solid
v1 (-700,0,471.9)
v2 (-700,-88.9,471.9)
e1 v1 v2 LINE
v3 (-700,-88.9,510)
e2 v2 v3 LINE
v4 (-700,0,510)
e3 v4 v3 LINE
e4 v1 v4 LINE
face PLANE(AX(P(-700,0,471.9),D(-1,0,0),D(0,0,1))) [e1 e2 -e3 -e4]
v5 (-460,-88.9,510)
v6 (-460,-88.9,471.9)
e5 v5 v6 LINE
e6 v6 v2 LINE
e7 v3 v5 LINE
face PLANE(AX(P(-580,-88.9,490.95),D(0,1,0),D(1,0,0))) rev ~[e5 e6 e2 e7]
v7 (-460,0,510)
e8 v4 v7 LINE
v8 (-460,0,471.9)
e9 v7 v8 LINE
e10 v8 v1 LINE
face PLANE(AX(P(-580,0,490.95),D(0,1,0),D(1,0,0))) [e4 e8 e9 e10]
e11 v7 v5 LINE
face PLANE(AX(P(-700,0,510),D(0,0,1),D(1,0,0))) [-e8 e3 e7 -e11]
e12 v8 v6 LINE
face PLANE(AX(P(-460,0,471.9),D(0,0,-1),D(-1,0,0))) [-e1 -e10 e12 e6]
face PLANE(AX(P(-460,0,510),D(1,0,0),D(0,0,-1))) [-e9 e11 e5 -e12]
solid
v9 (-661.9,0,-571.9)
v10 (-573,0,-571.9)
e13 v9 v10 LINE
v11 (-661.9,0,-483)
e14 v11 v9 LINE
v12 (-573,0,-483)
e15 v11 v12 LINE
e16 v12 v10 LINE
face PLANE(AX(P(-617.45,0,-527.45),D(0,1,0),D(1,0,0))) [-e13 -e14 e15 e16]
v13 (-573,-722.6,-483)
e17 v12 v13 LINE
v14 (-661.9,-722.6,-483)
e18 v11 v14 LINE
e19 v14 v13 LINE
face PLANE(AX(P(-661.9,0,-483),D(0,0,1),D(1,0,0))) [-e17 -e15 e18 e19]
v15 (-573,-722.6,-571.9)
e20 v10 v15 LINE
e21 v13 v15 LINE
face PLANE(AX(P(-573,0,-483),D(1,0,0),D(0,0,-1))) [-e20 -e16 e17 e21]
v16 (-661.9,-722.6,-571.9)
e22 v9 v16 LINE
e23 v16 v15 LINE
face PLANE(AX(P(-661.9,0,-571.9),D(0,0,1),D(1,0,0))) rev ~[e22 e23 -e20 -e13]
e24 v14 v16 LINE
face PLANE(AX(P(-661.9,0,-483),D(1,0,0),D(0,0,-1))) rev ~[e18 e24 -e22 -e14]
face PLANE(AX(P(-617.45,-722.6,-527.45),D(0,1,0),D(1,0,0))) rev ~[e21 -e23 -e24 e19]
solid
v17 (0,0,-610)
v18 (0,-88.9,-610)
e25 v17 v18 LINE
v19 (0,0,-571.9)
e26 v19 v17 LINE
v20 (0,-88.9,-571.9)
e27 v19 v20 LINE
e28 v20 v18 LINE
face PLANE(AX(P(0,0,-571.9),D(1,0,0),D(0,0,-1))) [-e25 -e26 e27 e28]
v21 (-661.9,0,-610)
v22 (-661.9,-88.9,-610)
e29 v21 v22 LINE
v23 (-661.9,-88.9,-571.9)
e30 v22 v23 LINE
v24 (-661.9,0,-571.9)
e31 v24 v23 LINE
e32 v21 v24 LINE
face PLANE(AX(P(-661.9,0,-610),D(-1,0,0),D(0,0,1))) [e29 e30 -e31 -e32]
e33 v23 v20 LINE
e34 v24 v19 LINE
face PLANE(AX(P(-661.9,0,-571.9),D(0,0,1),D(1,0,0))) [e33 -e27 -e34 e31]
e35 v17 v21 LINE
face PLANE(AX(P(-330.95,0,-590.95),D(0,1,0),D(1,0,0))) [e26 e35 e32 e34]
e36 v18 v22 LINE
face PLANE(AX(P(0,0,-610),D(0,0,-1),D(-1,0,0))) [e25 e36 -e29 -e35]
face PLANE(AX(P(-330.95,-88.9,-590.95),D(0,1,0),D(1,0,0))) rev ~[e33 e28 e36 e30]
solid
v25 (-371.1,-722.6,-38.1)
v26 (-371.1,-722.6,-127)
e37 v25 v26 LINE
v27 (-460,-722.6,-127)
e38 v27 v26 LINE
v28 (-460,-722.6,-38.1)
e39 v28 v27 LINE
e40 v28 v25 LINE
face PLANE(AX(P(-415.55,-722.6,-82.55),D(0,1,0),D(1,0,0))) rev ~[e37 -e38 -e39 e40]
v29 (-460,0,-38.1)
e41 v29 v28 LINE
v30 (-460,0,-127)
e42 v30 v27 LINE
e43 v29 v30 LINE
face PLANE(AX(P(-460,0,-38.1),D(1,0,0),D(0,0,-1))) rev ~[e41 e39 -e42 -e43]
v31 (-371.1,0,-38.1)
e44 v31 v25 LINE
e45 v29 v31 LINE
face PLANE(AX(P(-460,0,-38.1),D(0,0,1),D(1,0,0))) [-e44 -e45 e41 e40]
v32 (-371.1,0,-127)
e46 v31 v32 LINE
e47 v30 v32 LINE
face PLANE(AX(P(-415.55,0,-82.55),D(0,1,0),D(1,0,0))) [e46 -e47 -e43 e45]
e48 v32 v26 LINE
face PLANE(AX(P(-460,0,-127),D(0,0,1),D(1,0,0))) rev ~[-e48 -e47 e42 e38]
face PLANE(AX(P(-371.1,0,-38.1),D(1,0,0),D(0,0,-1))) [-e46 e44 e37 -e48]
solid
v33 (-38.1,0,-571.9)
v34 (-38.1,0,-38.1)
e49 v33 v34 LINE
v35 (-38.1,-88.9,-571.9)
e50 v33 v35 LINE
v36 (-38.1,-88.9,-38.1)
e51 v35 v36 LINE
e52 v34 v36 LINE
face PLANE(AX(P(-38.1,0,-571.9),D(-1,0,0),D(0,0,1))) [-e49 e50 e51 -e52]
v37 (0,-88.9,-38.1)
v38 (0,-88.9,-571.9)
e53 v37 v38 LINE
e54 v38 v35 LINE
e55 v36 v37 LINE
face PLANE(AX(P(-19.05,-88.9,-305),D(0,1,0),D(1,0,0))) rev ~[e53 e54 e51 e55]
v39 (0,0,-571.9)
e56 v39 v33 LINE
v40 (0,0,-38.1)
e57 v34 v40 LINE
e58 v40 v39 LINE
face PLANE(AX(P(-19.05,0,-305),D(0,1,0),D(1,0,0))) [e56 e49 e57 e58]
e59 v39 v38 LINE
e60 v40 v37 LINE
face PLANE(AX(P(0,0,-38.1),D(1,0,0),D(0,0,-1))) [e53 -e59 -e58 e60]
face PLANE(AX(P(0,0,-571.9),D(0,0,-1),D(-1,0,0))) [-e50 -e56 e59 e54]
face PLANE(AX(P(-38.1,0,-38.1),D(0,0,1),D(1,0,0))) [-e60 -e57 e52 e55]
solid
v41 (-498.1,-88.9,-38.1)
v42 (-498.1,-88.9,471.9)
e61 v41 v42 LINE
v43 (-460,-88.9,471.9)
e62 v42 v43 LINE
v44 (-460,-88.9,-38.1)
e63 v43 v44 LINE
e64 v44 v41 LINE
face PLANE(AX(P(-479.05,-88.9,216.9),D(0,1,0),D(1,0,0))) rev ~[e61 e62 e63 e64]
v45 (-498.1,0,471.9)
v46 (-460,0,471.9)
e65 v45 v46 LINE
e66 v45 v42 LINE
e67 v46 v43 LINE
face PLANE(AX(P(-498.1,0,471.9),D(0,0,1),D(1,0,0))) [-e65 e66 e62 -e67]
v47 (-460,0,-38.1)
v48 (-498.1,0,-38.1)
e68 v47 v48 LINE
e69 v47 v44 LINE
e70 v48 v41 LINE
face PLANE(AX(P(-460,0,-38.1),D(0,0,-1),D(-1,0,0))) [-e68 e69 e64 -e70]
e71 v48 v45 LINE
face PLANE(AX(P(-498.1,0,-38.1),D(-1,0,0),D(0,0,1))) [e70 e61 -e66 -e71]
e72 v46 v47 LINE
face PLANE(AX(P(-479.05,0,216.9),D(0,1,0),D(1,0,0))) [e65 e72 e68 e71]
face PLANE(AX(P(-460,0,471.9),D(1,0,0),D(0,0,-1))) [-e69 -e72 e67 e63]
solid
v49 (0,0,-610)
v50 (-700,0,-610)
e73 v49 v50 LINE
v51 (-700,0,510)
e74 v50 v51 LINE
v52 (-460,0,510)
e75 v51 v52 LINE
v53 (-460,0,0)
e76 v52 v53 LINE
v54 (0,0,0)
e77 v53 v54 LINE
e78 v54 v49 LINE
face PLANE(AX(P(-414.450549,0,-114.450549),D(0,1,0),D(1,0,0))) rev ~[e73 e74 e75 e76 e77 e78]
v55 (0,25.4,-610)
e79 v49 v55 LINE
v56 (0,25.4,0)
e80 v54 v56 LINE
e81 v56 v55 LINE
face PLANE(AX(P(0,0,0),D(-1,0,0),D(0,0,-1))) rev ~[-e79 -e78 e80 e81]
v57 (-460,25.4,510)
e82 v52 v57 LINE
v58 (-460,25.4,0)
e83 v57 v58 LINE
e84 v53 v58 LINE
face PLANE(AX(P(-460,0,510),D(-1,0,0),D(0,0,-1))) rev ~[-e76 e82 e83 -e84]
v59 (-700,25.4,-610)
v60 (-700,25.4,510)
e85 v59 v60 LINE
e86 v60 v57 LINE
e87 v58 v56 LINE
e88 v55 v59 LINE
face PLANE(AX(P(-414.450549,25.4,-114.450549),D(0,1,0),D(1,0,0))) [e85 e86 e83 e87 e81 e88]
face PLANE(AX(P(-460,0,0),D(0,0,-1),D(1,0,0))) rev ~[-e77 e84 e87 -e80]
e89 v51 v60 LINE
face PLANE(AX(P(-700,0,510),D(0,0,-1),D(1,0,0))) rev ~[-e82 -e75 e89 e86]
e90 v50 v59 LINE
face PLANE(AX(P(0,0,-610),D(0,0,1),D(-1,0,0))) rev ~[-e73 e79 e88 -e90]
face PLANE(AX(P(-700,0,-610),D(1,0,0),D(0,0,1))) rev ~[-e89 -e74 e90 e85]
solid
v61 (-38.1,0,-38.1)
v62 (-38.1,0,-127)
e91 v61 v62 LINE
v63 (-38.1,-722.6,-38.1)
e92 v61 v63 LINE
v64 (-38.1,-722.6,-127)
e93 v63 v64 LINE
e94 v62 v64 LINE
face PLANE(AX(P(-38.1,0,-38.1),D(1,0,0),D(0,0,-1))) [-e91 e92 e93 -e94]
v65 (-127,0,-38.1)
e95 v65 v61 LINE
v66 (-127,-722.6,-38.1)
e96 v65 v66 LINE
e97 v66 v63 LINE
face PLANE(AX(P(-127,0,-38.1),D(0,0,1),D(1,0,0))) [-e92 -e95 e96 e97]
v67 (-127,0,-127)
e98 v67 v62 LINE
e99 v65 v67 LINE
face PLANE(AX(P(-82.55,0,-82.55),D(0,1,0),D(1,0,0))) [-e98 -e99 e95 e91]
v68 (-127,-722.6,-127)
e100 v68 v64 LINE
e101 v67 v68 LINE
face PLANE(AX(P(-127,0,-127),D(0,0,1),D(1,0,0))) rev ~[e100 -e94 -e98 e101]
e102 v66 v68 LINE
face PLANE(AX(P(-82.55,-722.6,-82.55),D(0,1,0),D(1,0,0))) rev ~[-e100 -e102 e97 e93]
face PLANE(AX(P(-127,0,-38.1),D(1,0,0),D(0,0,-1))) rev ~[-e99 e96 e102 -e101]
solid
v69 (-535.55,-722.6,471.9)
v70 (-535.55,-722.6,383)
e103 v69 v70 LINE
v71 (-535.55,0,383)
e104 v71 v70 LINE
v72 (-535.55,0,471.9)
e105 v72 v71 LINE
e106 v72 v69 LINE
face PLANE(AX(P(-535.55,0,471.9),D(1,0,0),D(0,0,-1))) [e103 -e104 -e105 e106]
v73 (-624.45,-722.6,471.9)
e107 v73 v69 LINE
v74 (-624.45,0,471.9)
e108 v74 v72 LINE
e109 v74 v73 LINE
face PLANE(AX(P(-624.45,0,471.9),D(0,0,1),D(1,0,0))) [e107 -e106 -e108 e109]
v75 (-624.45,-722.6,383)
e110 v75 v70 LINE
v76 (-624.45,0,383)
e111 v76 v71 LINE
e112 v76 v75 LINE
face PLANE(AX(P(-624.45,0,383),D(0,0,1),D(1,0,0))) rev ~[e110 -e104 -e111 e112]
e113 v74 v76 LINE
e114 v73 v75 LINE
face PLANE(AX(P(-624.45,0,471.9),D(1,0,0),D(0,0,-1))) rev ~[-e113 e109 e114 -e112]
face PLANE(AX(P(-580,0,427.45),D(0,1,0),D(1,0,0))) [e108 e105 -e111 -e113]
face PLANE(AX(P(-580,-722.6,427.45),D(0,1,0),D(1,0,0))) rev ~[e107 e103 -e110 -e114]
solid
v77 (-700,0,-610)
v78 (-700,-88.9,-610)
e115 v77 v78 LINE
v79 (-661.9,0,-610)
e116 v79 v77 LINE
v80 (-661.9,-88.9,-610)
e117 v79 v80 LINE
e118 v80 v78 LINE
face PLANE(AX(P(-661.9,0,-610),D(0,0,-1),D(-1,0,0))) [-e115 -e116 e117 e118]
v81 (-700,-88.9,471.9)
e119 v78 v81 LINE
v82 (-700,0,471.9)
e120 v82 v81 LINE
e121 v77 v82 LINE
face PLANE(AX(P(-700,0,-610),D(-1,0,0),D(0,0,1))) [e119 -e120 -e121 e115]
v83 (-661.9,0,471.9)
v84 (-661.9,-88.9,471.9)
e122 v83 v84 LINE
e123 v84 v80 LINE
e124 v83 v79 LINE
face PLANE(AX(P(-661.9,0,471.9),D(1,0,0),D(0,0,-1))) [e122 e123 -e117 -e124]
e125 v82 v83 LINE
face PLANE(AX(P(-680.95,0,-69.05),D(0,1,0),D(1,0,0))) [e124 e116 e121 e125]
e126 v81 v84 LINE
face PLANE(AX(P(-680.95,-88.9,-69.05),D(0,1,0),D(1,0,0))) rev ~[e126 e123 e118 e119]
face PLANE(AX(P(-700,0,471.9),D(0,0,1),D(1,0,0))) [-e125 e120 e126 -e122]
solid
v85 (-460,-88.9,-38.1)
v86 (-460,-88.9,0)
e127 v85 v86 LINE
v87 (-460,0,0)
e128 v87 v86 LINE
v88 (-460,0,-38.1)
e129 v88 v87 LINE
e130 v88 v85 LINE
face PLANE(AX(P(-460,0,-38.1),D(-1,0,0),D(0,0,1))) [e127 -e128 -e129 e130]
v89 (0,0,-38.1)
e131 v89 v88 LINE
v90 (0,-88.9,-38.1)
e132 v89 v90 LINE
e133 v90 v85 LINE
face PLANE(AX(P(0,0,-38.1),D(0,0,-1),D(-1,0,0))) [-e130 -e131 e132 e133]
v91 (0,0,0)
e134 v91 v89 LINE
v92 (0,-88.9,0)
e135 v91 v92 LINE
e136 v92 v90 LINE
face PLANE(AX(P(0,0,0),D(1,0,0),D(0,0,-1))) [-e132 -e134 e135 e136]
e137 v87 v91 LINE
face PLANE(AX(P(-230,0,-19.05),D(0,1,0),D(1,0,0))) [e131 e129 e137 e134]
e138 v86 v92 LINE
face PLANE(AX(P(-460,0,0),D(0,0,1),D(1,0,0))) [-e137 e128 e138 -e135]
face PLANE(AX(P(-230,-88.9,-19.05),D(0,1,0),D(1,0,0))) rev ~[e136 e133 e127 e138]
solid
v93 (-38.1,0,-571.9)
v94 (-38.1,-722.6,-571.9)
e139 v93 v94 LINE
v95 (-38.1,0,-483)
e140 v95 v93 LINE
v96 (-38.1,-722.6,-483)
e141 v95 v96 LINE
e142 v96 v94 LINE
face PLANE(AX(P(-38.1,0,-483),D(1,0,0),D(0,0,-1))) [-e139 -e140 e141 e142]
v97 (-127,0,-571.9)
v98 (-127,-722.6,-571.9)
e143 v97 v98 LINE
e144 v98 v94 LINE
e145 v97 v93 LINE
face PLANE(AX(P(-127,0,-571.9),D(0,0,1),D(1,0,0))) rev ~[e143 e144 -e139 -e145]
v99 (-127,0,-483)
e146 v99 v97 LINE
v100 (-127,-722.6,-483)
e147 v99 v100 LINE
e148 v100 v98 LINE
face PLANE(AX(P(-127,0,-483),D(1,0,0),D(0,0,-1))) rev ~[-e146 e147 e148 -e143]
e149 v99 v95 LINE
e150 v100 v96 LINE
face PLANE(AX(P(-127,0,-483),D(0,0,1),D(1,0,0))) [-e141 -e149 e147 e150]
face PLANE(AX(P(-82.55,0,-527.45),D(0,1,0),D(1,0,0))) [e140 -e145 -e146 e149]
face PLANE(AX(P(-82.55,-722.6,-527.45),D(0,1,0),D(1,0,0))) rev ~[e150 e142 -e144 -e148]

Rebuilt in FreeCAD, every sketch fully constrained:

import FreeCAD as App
import Part
import Sketcher
Q = App.Units.Quantity


def add_polygon(sketch, points):
    """Adds a closed chain of lines whose ends are joined by coincident constraints."""
    first, n = sketch.GeometryCount, len(points)
    for a, b in zip(points, points[1:] + points[:1]):
        sketch.addGeometry(Part.LineSegment(App.Vector(*a, 0), App.Vector(*b, 0)), False)
    for i in range(n):
        sketch.addConstraint(Sketcher.Constraint("Coincident", first + i, 2, first + (i + 1) % n, 1))

doc = App.newDocument("Part")
body = doc.addObject("PartDesign::Body", "Body")

sketch1 = body.newObject("Sketcher::SketchObject", "Sketch")
sketch1.AttachmentSupport = (doc.getObject("XZ_Plane"), [""])
sketch1.MapMode = "FlatFace"
add_polygon(sketch1, [(-700, 510), (-460, 510), (-460, 0), (0, 0), (0, -610), (-700, -610)])
sketch1.addConstraint([
    Sketcher.Constraint("Horizontal", 0),
    Sketcher.Constraint("Vertical", 1),
    Sketcher.Constraint("Horizontal", 2),
    Sketcher.Constraint("Vertical", 3),
    Sketcher.Constraint("Horizontal", 4),
    Sketcher.Constraint("Vertical", 5),
    Sketcher.Constraint("Coincident", 2, 2, -1, 1),
    Sketcher.Constraint("DistanceX", 0, 1, 0, 2, Q("240 mm")),
    Sketcher.Constraint("DistanceX", 2, 1, 2, 2, Q("460 mm")),
    Sketcher.Constraint("DistanceY", 1, 2, 1, 1, Q("510 mm")),
    Sketcher.Constraint("DistanceY", 3, 2, 3, 1, Q("610 mm")),
])
pad1 = body.newObject("PartDesign::Pad", "Pad")
pad1.Profile = sketch1
pad1.Length = 25.4
pad1.Reversed = True
body2 = doc.addObject("PartDesign::Body", "Body001")

sketch2 = body2.newObject("Sketcher::SketchObject", "Sketch001")
sketch2.AttachmentSupport = (doc.getObject("XZ_Plane001"), [""])
sketch2.MapMode = "FlatFace"
add_polygon(sketch2, [(-624, 383), (-624, 472), (-536, 472), (-536, 383)])
sketch2.addConstraint([
    Sketcher.Constraint("Vertical", 0),
    Sketcher.Constraint("Horizontal", 1),
    Sketcher.Constraint("Vertical", 2),
    Sketcher.Constraint("Horizontal", 3),
    Sketcher.Constraint("Equal", 3, 0),
    Sketcher.Constraint("DistanceX", 1, 1, 1, 2, Q("88.9 mm")),
    Sketcher.Constraint("DistanceY", -1, 1, 2, 2, Q("383 mm")),
    Sketcher.Constraint("DistanceX", 0, 2, -1, 1, Q("624.45 mm")),
])
pad2 = body2.newObject("PartDesign::Pad", "Pad001")
pad2.Profile = sketch2
pad2.Length = 722.6
body3 = doc.addObject("PartDesign::Body", "Body002")

sketch3 = body3.newObject("Sketcher::SketchObject", "Sketch002")
sketch3.AttachmentSupport = (doc.getObject("XZ_Plane002"), [""])
sketch3.MapMode = "FlatFace"
add_polygon(sketch3, [(-460, -127), (-460, -38), (-371, -38), (-371, -127)])
sketch3.addConstraint([
    Sketcher.Constraint("Vertical", 0),
    Sketcher.Constraint("Horizontal", 1),
    Sketcher.Constraint("Vertical", 2),
    Sketcher.Constraint("Horizontal", 3),
    Sketcher.Constraint("Equal", 3, 0),
    Sketcher.Constraint("DistanceX", 1, 1, 1, 2, Q("88.9 mm")),
    Sketcher.Constraint("DistanceX", 0, 2, -1, 1, Q("460 mm")),
    Sketcher.Constraint("DistanceY", 2, 2, -1, 1, Q("127 mm")),
])
pad3 = body3.newObject("PartDesign::Pad", "Pad002")
pad3.Profile = sketch3
pad3.Length = 722.6
body4 = doc.addObject("PartDesign::Body", "Body003")

sketch4 = body4.newObject("Sketcher::SketchObject", "Sketch003")
sketch4.AttachmentSupport = (doc.getObject("XZ_Plane003"), [""])
sketch4.MapMode = "FlatFace"
add_polygon(sketch4, [(-127, -127), (-127, -38), (-38, -38), (-38, -127)])
sketch4.addConstraint([
    Sketcher.Constraint("Vertical", 0),
    Sketcher.Constraint("Horizontal", 1),
    Sketcher.Constraint("Vertical", 2),
    Sketcher.Constraint("Horizontal", 3),
    Sketcher.Constraint("Equal", 3, 0),
    Sketcher.Constraint("DistanceX", 1, 1, 1, 2, Q("88.9 mm")),
    Sketcher.Constraint("DistanceX", 0, 2, -1, 1, Q("127 mm")),
    Sketcher.Constraint("DistanceY", 2, 2, -1, 1, Q("127 mm")),
])
pad4 = body4.newObject("PartDesign::Pad", "Pad003")
pad4.Profile = sketch4
pad4.Length = 722.6
body5 = doc.addObject("PartDesign::Body", "Body004")

sketch5 = body5.newObject("Sketcher::SketchObject", "Sketch004")
sketch5.AttachmentSupport = (doc.getObject("XZ_Plane004"), [""])
sketch5.MapMode = "FlatFace"
add_polygon(sketch5, [(-127, -572), (-127, -483), (-38, -483), (-38, -572)])
sketch5.addConstraint([
    Sketcher.Constraint("Vertical", 0),
    Sketcher.Constraint("Horizontal", 1),
    Sketcher.Constraint("Vertical", 2),
    Sketcher.Constraint("Horizontal", 3),
    Sketcher.Constraint("Equal", 3, 0),
    Sketcher.Constraint("DistanceX", 1, 1, 1, 2, Q("88.9 mm")),
    Sketcher.Constraint("DistanceX", 0, 2, -1, 1, Q("127 mm")),
    Sketcher.Constraint("DistanceY", 0, 2, -1, 1, Q("483 mm")),
])
pad5 = body5.newObject("PartDesign::Pad", "Pad004")
pad5.Profile = sketch5
pad5.Length = 722.6
body6 = doc.addObject("PartDesign::Body", "Body005")

sketch6 = body6.newObject("Sketcher::SketchObject", "Sketch005")
sketch6.AttachmentSupport = (doc.getObject("XZ_Plane005"), [""])
sketch6.MapMode = "FlatFace"
add_polygon(sketch6, [(-662, -572), (-662, -483), (-573, -483), (-573, -572)])
sketch6.addConstraint([
    Sketcher.Constraint("Vertical", 0),
    Sketcher.Constraint("Horizontal", 1),
    Sketcher.Constraint("Vertical", 2),
    Sketcher.Constraint("Horizontal", 3),
    Sketcher.Constraint("Equal", 3, 0),
    Sketcher.Constraint("DistanceX", 1, 1, 1, 2, Q("88.9 mm")),
    Sketcher.Constraint("DistanceY", 0, 2, -1, 1, Q("483 mm")),
    Sketcher.Constraint("DistanceX", 1, 2, -1, 1, Q("573 mm")),
])
pad6 = body6.newObject("PartDesign::Pad", "Pad005")
pad6.Profile = sketch6
pad6.Length = 722.6
body7 = doc.addObject("PartDesign::Body", "Body006")

sketch7 = body7.newObject("Sketcher::SketchObject", "Sketch006")
sketch7.AttachmentSupport = (doc.getObject("XZ_Plane006"), [""])
sketch7.MapMode = "FlatFace"
add_polygon(sketch7, [(-460, -38), (-460, 0), (0, 0), (0, -38)])
sketch7.addConstraint([
    Sketcher.Constraint("Vertical", 0),
    Sketcher.Constraint("Horizontal", 1),
    Sketcher.Constraint("Vertical", 2),
    Sketcher.Constraint("Horizontal", 3),
    Sketcher.Constraint("Coincident", 1, 2, -1, 1),
    Sketcher.Constraint("DistanceX", 1, 1, 1, 2, Q("460 mm")),
    Sketcher.Constraint("DistanceY", 0, 1, 0, 2, Q("38.1 mm")),
])
pad7 = body7.newObject("PartDesign::Pad", "Pad006")
pad7.Profile = sketch7
pad7.Length = 88.9
body8 = doc.addObject("PartDesign::Body", "Body007")

sketch8 = body8.newObject("Sketcher::SketchObject", "Sketch007")
sketch8.AttachmentSupport = (doc.getObject("XZ_Plane007"), [""])
sketch8.MapMode = "FlatFace"
add_polygon(sketch8, [(-498, 472), (-460, 472), (-460, -38), (-498, -38)])
sketch8.addConstraint([
    Sketcher.Constraint("Horizontal", 0),
    Sketcher.Constraint("Vertical", 1),
    Sketcher.Constraint("Horizontal", 2),
    Sketcher.Constraint("Vertical", 3),
    Sketcher.Constraint("DistanceY", 1, 2, 1, 1, Q("510 mm")),
    Sketcher.Constraint("DistanceX", 0, 1, 0, 2, Q("38.1 mm")),
    Sketcher.Constraint("DistanceX", 0, 2, -1, 1, Q("460 mm")),
    Sketcher.Constraint("DistanceY", -1, 1, 0, 2, Q("471.9 mm")),
])
pad8 = body8.newObject("PartDesign::Pad", "Pad007")
pad8.Profile = sketch8
pad8.Length = 88.9
body9 = doc.addObject("PartDesign::Body", "Body008")

sketch9 = body9.newObject("Sketcher::SketchObject", "Sketch008")
sketch9.AttachmentSupport = (doc.getObject("XZ_Plane008"), [""])
sketch9.MapMode = "FlatFace"
add_polygon(sketch9, [(-700, 472), (-700, 510), (-460, 510), (-460, 472)])
sketch9.addConstraint([
    Sketcher.Constraint("Vertical", 0),
    Sketcher.Constraint("Horizontal", 1),
    Sketcher.Constraint("Vertical", 2),
    Sketcher.Constraint("Horizontal", 3),
    Sketcher.Constraint("DistanceX", 1, 1, 1, 2, Q("240 mm")),
    Sketcher.Constraint("DistanceY", 0, 1, 0, 2, Q("38.1 mm")),
    Sketcher.Constraint("DistanceX", 0, 2, -1, 1, Q("700 mm")),
    Sketcher.Constraint("DistanceY", -1, 1, 0, 2, Q("510 mm")),
])
pad9 = body9.newObject("PartDesign::Pad", "Pad008")
pad9.Profile = sketch9
pad9.Length = 88.9
body10 = doc.addObject("PartDesign::Body", "Body009")

sketch10 = body10.newObject("Sketcher::SketchObject", "Sketch009")
sketch10.AttachmentSupport = (doc.getObject("XZ_Plane009"), [""])
sketch10.MapMode = "FlatFace"
add_polygon(sketch10, [(-700, -610), (-700, 472), (-662, 472), (-662, -610)])
sketch10.addConstraint([
    Sketcher.Constraint("Vertical", 0),
    Sketcher.Constraint("Horizontal", 1),
    Sketcher.Constraint("Vertical", 2),
    Sketcher.Constraint("Horizontal", 3),
    Sketcher.Constraint("DistanceX", 1, 1, 1, 2, Q("38.1 mm")),
    Sketcher.Constraint("DistanceY", 0, 1, 0, 2, Q("1081.9 mm")),
    Sketcher.Constraint("DistanceX", 0, 2, -1, 1, Q("700 mm")),
    Sketcher.Constraint("DistanceY", 2, 2, -1, 1, Q("610 mm")),
])
pad10 = body10.newObject("PartDesign::Pad", "Pad009")
pad10.Profile = sketch10
pad10.Length = 88.9
body11 = doc.addObject("PartDesign::Body", "Body010")

sketch11 = body11.newObject("Sketcher::SketchObject", "Sketch010")
sketch11.AttachmentSupport = (doc.getObject("XZ_Plane010"), [""])
sketch11.MapMode = "FlatFace"
add_polygon(sketch11, [(0, -610), (-662, -610), (-662, -572), (0, -572)])
sketch11.addConstraint([
    Sketcher.Constraint("Horizontal", 0),
    Sketcher.Constraint("Vertical", 1),
    Sketcher.Constraint("Horizontal", 2),
    Sketcher.Constraint("Vertical", 3),
    Sketcher.Constraint("PointOnObject", 2, 2, -2),
    Sketcher.Constraint("DistanceX", 0, 2, 0, 1, Q("661.9 mm")),
    Sketcher.Constraint("DistanceY", 1, 1, 1, 2, Q("38.1 mm")),
    Sketcher.Constraint("DistanceY", 0, 2, -1, 1, Q("610 mm")),
])
pad11 = body11.newObject("PartDesign::Pad", "Pad010")
pad11.Profile = sketch11
pad11.Length = 88.9
body12 = doc.addObject("PartDesign::Body", "Body011")

sketch12 = body12.newObject("Sketcher::SketchObject", "Sketch011")
sketch12.AttachmentSupport = (doc.getObject("XZ_Plane011"), [""])
sketch12.MapMode = "FlatFace"
add_polygon(sketch12, [(-38, -38), (0, -38), (0, -572), (-38, -572)])
sketch12.addConstraint([
    Sketcher.Constraint("Horizontal", 0),
    Sketcher.Constraint("Vertical", 1),
    Sketcher.Constraint("Horizontal", 2),
    Sketcher.Constraint("Vertical", 3),
    Sketcher.Constraint("PointOnObject", 0, 2, -2),
    Sketcher.Constraint("DistanceX", 0, 1, 0, 2, Q("38.1 mm")),
    Sketcher.Constraint("DistanceY", 1, 2, 1, 1, Q("533.8 mm")),
    Sketcher.Constraint("DistanceY", 0, 2, -1, 1, Q("38.1 mm")),
])
pad12 = body12.newObject("PartDesign::Pad", "Pad011")
pad12.Profile = sketch12
pad12.Length = 88.9

doc.recompute()
